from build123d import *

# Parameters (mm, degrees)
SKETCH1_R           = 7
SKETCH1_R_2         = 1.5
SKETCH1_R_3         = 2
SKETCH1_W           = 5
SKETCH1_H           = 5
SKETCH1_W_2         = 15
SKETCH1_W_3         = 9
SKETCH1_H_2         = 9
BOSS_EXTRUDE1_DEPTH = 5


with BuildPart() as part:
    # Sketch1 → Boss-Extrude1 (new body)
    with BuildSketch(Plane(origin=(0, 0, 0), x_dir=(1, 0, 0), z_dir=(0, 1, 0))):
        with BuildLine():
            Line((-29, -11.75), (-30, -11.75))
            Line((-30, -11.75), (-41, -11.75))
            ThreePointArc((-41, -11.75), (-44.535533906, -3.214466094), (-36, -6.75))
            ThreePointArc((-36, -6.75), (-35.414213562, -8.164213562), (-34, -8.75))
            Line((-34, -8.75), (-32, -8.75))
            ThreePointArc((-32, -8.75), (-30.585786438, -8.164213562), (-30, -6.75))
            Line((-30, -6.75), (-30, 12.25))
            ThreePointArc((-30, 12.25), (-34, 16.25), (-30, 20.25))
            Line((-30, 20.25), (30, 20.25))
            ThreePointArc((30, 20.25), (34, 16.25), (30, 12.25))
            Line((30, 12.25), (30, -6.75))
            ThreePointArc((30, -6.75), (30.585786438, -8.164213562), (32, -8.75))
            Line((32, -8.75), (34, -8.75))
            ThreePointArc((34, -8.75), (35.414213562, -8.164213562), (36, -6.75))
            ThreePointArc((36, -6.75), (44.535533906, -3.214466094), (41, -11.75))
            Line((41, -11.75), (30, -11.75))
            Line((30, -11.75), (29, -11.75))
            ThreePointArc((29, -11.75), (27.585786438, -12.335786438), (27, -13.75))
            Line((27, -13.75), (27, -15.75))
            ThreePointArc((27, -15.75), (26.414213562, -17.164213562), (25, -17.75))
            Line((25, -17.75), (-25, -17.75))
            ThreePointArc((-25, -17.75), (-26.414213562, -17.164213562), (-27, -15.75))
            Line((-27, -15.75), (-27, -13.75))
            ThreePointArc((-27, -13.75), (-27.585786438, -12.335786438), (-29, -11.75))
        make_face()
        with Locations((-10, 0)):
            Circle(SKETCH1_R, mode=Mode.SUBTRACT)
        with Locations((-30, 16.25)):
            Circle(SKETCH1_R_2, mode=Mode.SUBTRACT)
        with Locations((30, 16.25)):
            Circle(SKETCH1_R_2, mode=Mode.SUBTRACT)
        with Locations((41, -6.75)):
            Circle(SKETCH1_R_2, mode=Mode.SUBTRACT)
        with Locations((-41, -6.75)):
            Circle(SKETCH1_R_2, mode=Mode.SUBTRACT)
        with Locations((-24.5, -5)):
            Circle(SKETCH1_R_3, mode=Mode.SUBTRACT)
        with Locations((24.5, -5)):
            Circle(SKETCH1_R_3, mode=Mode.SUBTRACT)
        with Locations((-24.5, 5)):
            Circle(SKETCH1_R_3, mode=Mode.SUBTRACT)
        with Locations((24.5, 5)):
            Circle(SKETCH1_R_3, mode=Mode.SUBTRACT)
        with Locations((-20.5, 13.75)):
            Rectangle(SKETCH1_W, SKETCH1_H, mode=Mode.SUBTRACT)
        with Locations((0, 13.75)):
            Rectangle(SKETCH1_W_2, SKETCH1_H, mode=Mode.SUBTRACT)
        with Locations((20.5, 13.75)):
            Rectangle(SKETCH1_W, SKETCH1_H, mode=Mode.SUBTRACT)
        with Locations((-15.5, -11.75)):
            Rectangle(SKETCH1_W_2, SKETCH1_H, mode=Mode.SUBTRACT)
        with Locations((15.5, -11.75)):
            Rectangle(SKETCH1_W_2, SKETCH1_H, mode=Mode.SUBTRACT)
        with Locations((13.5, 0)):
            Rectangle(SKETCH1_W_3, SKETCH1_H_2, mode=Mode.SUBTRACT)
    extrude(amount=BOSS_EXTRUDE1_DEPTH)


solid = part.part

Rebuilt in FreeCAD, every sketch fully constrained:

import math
import FreeCAD as App
import Part
import Sketcher

V = App.Vector
Q = App.Units.Quantity

doc = App.newDocument("Part")
body = doc.addObject("PartDesign::Body", "Body")

sketch1 = body.newObject("Sketcher::SketchObject", "Sketch")
sketch1.AttachmentSupport = (doc.getObject("XZ_Plane"), [""])
sketch1.MapMode = "FlatFace"
sketch1.addGeometry(Part.LineSegment(V(-41, 11.8, 0), V(-29, 11.8, 0)), False)
sketch1.addGeometry(Part.ArcOfCircle(Part.Circle(V(-29, 13.8, 0), V(0, 0, 1), 2), math.radians(-90), math.radians(0)), False)
sketch1.addGeometry(Part.LineSegment(V(-27, 13.8, 0), V(-27, 15.8, 0)), False)
sketch1.addGeometry(Part.ArcOfCircle(Part.Circle(V(-25, 15.7, 0), V(0, 0, 1), 2), math.radians(90), math.radians(180)), False)
sketch1.addGeometry(Part.LineSegment(V(-25, 17.8, 0), V(25, 17.8, 0)), False)
sketch1.addGeometry(Part.ArcOfCircle(Part.Circle(V(25, 15.7, 0), V(0, 0, 1), 2), math.radians(0), math.radians(90)), False)
sketch1.addGeometry(Part.LineSegment(V(27, 15.8, 0), V(27, 13.8, 0)), False)
sketch1.addGeometry(Part.ArcOfCircle(Part.Circle(V(29, 13.8, 0), V(0, 0, 1), 2), math.radians(-180), math.radians(-90)), False)
sketch1.addGeometry(Part.LineSegment(V(29, 11.8, 0), V(41, 11.8, 0)), False)
sketch1.addGeometry(Part.ArcOfCircle(Part.Circle(V(41, 6.8, 0), V(0, 0, 1), 5), math.radians(180), math.radians(450)), False)
sketch1.addGeometry(Part.ArcOfCircle(Part.Circle(V(34, 6.7, 0), V(0, 0, 1), 2), math.radians(0), math.radians(90)), False)
sketch1.addGeometry(Part.LineSegment(V(34, 8.8, 0), V(32, 8.8, 0)), False)
sketch1.addGeometry(Part.ArcOfCircle(Part.Circle(V(32, 6.7, 0), V(0, 0, 1), 2), math.radians(90), math.radians(180)), False)
sketch1.addGeometry(Part.LineSegment(V(30, 6.8, 0), V(30, -12.2, 0)), False)
sketch1.addGeometry(Part.ArcOfCircle(Part.Circle(V(30, -16.2, 0), V(0, 0, 1), 4), math.radians(-90), math.radians(90)), False)
sketch1.addGeometry(Part.LineSegment(V(30, -20.2, 0), V(-30, -20.2, 0)), False)
sketch1.addGeometry(Part.ArcOfCircle(Part.Circle(V(-30, -16.2, 0), V(0, 0, 1), 4), math.radians(90), math.radians(270)), False)
sketch1.addGeometry(Part.LineSegment(V(-30, -12.2, 0), V(-30, 6.8, 0)), False)
sketch1.addGeometry(Part.ArcOfCircle(Part.Circle(V(-32, 6.7, 0), V(0, 0, 1), 2), math.radians(0), math.radians(90)), False)
sketch1.addGeometry(Part.LineSegment(V(-32, 8.8, 0), V(-34, 8.8, 0)), False)
sketch1.addGeometry(Part.ArcOfCircle(Part.Circle(V(-34, 6.7, 0), V(0, 0, 1), 2), math.radians(90), math.radians(180)), False)
sketch1.addGeometry(Part.ArcOfCircle(Part.Circle(V(-41, 6.8, 0), V(0, 0, 1), 5), math.radians(90), math.radians(360)), False)
sketch1.addGeometry(Part.Circle(V(41, 6.8, 0), V(0, 0, 1), 1.5), False)
sketch1.addGeometry(Part.LineSegment(V(8, 14.2, 0), V(8, 9.2, 0)), False)
sketch1.addGeometry(Part.LineSegment(V(8, 9.2, 0), V(23, 9.2, 0)), False)
sketch1.addGeometry(Part.LineSegment(V(23, 9.2, 0), V(23, 14.2, 0)), False)
sketch1.addGeometry(Part.LineSegment(V(23, 14.2, 0), V(8, 14.2, 0)), False)
sketch1.addGeometry(Part.Circle(V(24.5, 5, 0), V(0, 0, 1), 2), False)
sketch1.addGeometry(Part.LineSegment(V(9, 4.5, 0), V(9, -4.5, 0)), False)
sketch1.addGeometry(Part.LineSegment(V(9, -4.5, 0), V(18, -4.5, 0)), False)
sketch1.addGeometry(Part.LineSegment(V(18, -4.5, 0), V(18, 4.5, 0)), False)
sketch1.addGeometry(Part.LineSegment(V(18, 4.5, 0), V(9, 4.5, 0)), False)
sketch1.addGeometry(Part.LineSegment(V(-23, 14.2, 0), V(-23, 9.2, 0)), False)
sketch1.addGeometry(Part.LineSegment(V(-23, 9.2, 0), V(-8, 9.2, 0)), False)
sketch1.addGeometry(Part.LineSegment(V(-8, 9.2, 0), V(-8, 14.2, 0)), False)
sketch1.addGeometry(Part.LineSegment(V(-8, 14.2, 0), V(-23, 14.2, 0)), False)
sketch1.addGeometry(Part.Circle(V(-41, 6.8, 0), V(0, 0, 1), 1.5), False)
sketch1.addGeometry(Part.Circle(V(-10, 0, 0), V(0, 0, 1), 7), False)
sketch1.addGeometry(Part.Circle(V(-24.5, 5, 0), V(0, 0, 1), 2), False)
sketch1.addGeometry(Part.Circle(V(24.5, -5, 0), V(0, 0, 1), 2), False)
sketch1.addGeometry(Part.Circle(V(30, -16.2, 0), V(0, 0, 1), 1.5), False)
sketch1.addGeometry(Part.LineSegment(V(18, -11.2, 0), V(18, -16.2, 0)), False)
sketch1.addGeometry(Part.LineSegment(V(18, -16.2, 0), V(23, -16.2, 0)), False)
sketch1.addGeometry(Part.LineSegment(V(23, -16.2, 0), V(23, -11.2, 0)), False)
sketch1.addGeometry(Part.LineSegment(V(23, -11.2, 0), V(18, -11.2, 0)), False)
sketch1.addGeometry(Part.Circle(V(-24.5, -5, 0), V(0, 0, 1), 2), False)
sketch1.addGeometry(Part.LineSegment(V(-7.5, -11.2, 0), V(-7.5, -16.2, 0)), False)
sketch1.addGeometry(Part.LineSegment(V(-7.5, -16.2, 0), V(7.5, -16.2, 0)), False)
sketch1.addGeometry(Part.LineSegment(V(7.5, -16.2, 0), V(7.5, -11.2, 0)), False)
sketch1.addGeometry(Part.LineSegment(V(7.5, -11.2, 0), V(-7.5, -11.2, 0)), False)
sketch1.addGeometry(Part.LineSegment(V(-23, -11.2, 0), V(-23, -16.2, 0)), False)
sketch1.addGeometry(Part.LineSegment(V(-23, -16.2, 0), V(-18, -16.2, 0)), False)
sketch1.addGeometry(Part.LineSegment(V(-18, -16.2, 0), V(-18, -11.2, 0)), False)
sketch1.addGeometry(Part.LineSegment(V(-18, -11.2, 0), V(-23, -11.2, 0)), False)
sketch1.addGeometry(Part.Circle(V(-30, -16.2, 0), V(0, 0, 1), 1.5), False)
sketch1.addConstraint(Sketcher.Constraint("Tangent", 0, 2, 1, 1))
sketch1.addConstraint(Sketcher.Constraint("Tangent", 1, 2, 2, 1))
sketch1.addConstraint(Sketcher.Constraint("Tangent", 2, 2, 3, 2))
sketch1.addConstraint(Sketcher.Constraint("Tangent", 3, 1, 4, 1))
sketch1.addConstraint(Sketcher.Constraint("Tangent", 4, 2, 5, 2))
sketch1.addConstraint(Sketcher.Constraint("Tangent", 5, 1, 6, 1))
sketch1.addConstraint(Sketcher.Constraint("Tangent", 6, 2, 7, 1))
sketch1.addConstraint(Sketcher.Constraint("Tangent", 7, 2, 8, 1))
sketch1.addConstraint(Sketcher.Constraint("Tangent", 8, 2, 9, 2))
sketch1.addConstraint(Sketcher.Constraint("Tangent", 9, 1, 10, 1))
sketch1.addConstraint(Sketcher.Constraint("Tangent", 10, 2, 11, 1))
sketch1.addConstraint(Sketcher.Constraint("Tangent", 11, 2, 12, 1))
sketch1.addConstraint(Sketcher.Constraint("Tangent", 12, 2, 13, 1))
sketch1.addConstraint(Sketcher.Constraint("Coincident", 13, 2, 14, 2))
sketch1.addConstraint(Sketcher.Constraint("Tangent", 14, 1, 15, 1))
sketch1.addConstraint(Sketcher.Constraint("Tangent", 15, 2, 16, 2))
sketch1.addConstraint(Sketcher.Constraint("Coincident", 16, 1, 17, 1))
sketch1.addConstraint(Sketcher.Constraint("Tangent", 17, 2, 18, 1))
sketch1.addConstraint(Sketcher.Constraint("Tangent", 18, 2, 19, 1))
sketch1.addConstraint(Sketcher.Constraint("Tangent", 19, 2, 20, 1))
sketch1.addConstraint(Sketcher.Constraint("Tangent", 20, 2, 21, 2))
sketch1.addConstraint(Sketcher.Constraint("Tangent", 21, 1, 0, 1))
sketch1.addConstraint(Sketcher.Constraint("Coincident", 23, 2, 24, 1))
sketch1.addConstraint(Sketcher.Constraint("Coincident", 24, 2, 25, 1))
sketch1.addConstraint(Sketcher.Constraint("Coincident", 25, 2, 26, 1))
sketch1.addConstraint(Sketcher.Constraint("Coincident", 26, 2, 23, 1))
sketch1.addConstraint(Sketcher.Constraint("Coincident", 28, 2, 29, 1))
sketch1.addConstraint(Sketcher.Constraint("Coincident", 29, 2, 30, 1))
sketch1.addConstraint(Sketcher.Constraint("Coincident", 30, 2, 31, 1))
sketch1.addConstraint(Sketcher.Constraint("Coincident", 31, 2, 28, 1))
sketch1.addConstraint(Sketcher.Constraint("Coincident", 32, 2, 33, 1))
sketch1.addConstraint(Sketcher.Constraint("Coincident", 33, 2, 34, 1))
sketch1.addConstraint(Sketcher.Constraint("Coincident", 34, 2, 35, 1))
sketch1.addConstraint(Sketcher.Constraint("Coincident", 35, 2, 32, 1))
sketch1.addConstraint(Sketcher.Constraint("Coincident", 41, 2, 42, 1))
sketch1.addConstraint(Sketcher.Constraint("Coincident", 42, 2, 43, 1))
sketch1.addConstraint(Sketcher.Constraint("Coincident", 43, 2, 44, 1))
sketch1.addConstraint(Sketcher.Constraint("Coincident", 44, 2, 41, 1))
sketch1.addConstraint(Sketcher.Constraint("Coincident", 46, 2, 47, 1))
sketch1.addConstraint(Sketcher.Constraint("Coincident", 47, 2, 48, 1))
sketch1.addConstraint(Sketcher.Constraint("Coincident", 48, 2, 49, 1))
sketch1.addConstraint(Sketcher.Constraint("Coincident", 49, 2, 46, 1))
sketch1.addConstraint(Sketcher.Constraint("Coincident", 50, 2, 51, 1))
sketch1.addConstraint(Sketcher.Constraint("Coincident", 51, 2, 52, 1))
sketch1.addConstraint(Sketcher.Constraint("Coincident", 52, 2, 53, 1))
sketch1.addConstraint(Sketcher.Constraint("Coincident", 53, 2, 50, 1))
sketch1.addConstraint(Sketcher.Constraint("Horizontal", 0))
sketch1.addConstraint(Sketcher.Constraint("Vertical", 2))
sketch1.addConstraint(Sketcher.Constraint("Horizontal", 4))
sketch1.addConstraint(Sketcher.Constraint("Vertical", 6))
sketch1.addConstraint(Sketcher.Constraint("Horizontal", 8))
sketch1.addConstraint(Sketcher.Constraint("Horizontal", 11))
sketch1.addConstraint(Sketcher.Constraint("Vertical", 13))
sketch1.addConstraint(Sketcher.Constraint("Horizontal", 15))
sketch1.addConstraint(Sketcher.Constraint("Vertical", 17))
sketch1.addConstraint(Sketcher.Constraint("Horizontal", 19))
sketch1.addConstraint(Sketcher.Constraint("Vertical", 23))
sketch1.addConstraint(Sketcher.Constraint("Horizontal", 24))
sketch1.addConstraint(Sketcher.Constraint("Vertical", 25))
sketch1.addConstraint(Sketcher.Constraint("Horizontal", 26))
sketch1.addConstraint(Sketcher.Constraint("Vertical", 28))
sketch1.addConstraint(Sketcher.Constraint("Horizontal", 29))
sketch1.addConstraint(Sketcher.Constraint("Vertical", 30))
sketch1.addConstraint(Sketcher.Constraint("Horizontal", 31))
sketch1.addConstraint(Sketcher.Constraint("Vertical", 32))
sketch1.addConstraint(Sketcher.Constraint("Horizontal", 33))
sketch1.addConstraint(Sketcher.Constraint("Vertical", 34))
sketch1.addConstraint(Sketcher.Constraint("Horizontal", 35))
sketch1.addConstraint(Sketcher.Constraint("Vertical", 41))
sketch1.addConstraint(Sketcher.Constraint("Horizontal", 42))
sketch1.addConstraint(Sketcher.Constraint("Vertical", 43))
sketch1.addConstraint(Sketcher.Constraint("Horizontal", 44))
sketch1.addConstraint(Sketcher.Constraint("Vertical", 46))
sketch1.addConstraint(Sketcher.Constraint("Horizontal", 47))
sketch1.addConstraint(Sketcher.Constraint("Vertical", 48))
sketch1.addConstraint(Sketcher.Constraint("Horizontal", 49))
sketch1.addConstraint(Sketcher.Constraint("Vertical", 50))
sketch1.addConstraint(Sketcher.Constraint("Horizontal", 51))
sketch1.addConstraint(Sketcher.Constraint("Vertical", 52))
sketch1.addConstraint(Sketcher.Constraint("Horizontal", 53))
sketch1.addConstraint(Sketcher.Constraint("Coincident", 22, 3, 9, 3))
sketch1.addConstraint(Sketcher.Constraint("Coincident", 36, 3, 21, 3))
sketch1.addConstraint(Sketcher.Constraint("Coincident", 40, 3, 14, 3))
sketch1.addConstraint(Sketcher.Constraint("Coincident", 54, 3, 16, 3))
sketch1.addConstraint(Sketcher.Constraint("Equal", 1, 3))
sketch1.addConstraint(Sketcher.Constraint("Equal", 3, 5))
sketch1.addConstraint(Sketcher.Constraint("Equal", 5, 7))
sketch1.addConstraint(Sketcher.Constraint("Equal", 7, 10))
sketch1.addConstraint(Sketcher.Constraint("Equal", 10, 12))
sketch1.addConstraint(Sketcher.Constraint("Equal", 14, 16))
sketch1.addConstraint(Sketcher.Constraint("Equal", 12, 18))
sketch1.addConstraint(Sketcher.Constraint("Equal", 18, 20))
sketch1.addConstraint(Sketcher.Constraint("Equal", 9, 21))
sketch1.addConstraint(Sketcher.Constraint("Equal", 20, 27))
sketch1.addConstraint(Sketcher.Constraint("Equal", 22, 36))
sketch1.addConstraint(Sketcher.Constraint("Equal", 27, 38))
sketch1.addConstraint(Sketcher.Constraint("Equal", 38, 39))
sketch1.addConstraint(Sketcher.Constraint("Equal", 36, 40))
sketch1.addConstraint(Sketcher.Constraint("Equal", 39, 45))
sketch1.addConstraint(Sketcher.Constraint("Equal", 40, 54))
sketch1.addConstraint(Sketcher.Constraint("Symmetric", 38, 3, 39, 3, -1, 1))
sketch1.addConstraint(Sketcher.Constraint("Symmetric", 27, 3, 45, 3, -1, 1))
sketch1.addConstraint(Sketcher.Constraint("Symmetric", 1, 3, 7, 3, -2))
sketch1.addConstraint(Sketcher.Constraint("Symmetric", 12, 3, 18, 3, -2))
sketch1.addConstraint(Sketcher.Constraint("Symmetric", 27, 3, 38, 3, -2))
sketch1.addConstraint(Sketcher.Constraint("Symmetric", 24, 2, 32, 2, -2))
sketch1.addConstraint(Sketcher.Constraint("Symmetric", 26, 2, 34, 2, -2))
sketch1.addConstraint(Sketcher.Constraint("Symmetric", 42, 2, 50, 2, -2))
sketch1.addConstraint(Sketcher.Constraint("Symmetric", 44, 2, 52, 2, -2))
sketch1.addConstraint(Sketcher.Constraint("PointOnObject", 37, 3, -1))
sketch1.addConstraint(Sketcher.Constraint("Horizontal", 9, 3, 10, 3))
sketch1.addConstraint(Sketcher.Constraint("Horizontal", 54, 3, 41, 2))
sketch1.addConstraint(Sketcher.Constraint("Horizontal", 42, 2, 46, 2))
sketch1.addConstraint(Sketcher.Constraint("Horizontal", 44, 2, 48, 2))
sketch1.addConstraint(Sketcher.Constraint("Vertical", 40, 3, 12, 2))
sketch1.addConstraint(Sketcher.Constraint("Vertical", 15, 2, 16, 1))
sketch1.addConstraint(Sketcher.Constraint("Vertical", 30, 2, 41, 2))
sketch1.addConstraint(Sketcher.Constraint("Vertical", 25, 2, 42, 2))
sketch1.addConstraint(Sketcher.Constraint("Equal", 0, 8))
sketch1.addConstraint(Sketcher.Constraint("Equal", 35, 47))
sketch1.addConstraint(Sketcher.Constraint("Equal", 19, 2))
sketch1.addConstraint(Sketcher.Constraint("Equal", 53, 23))
sketch1.addConstraint(Sketcher.Constraint("Equal", 31, 28))
sketch1.addConstraint(Sketcher.Constraint("Equal", 34, 41))
sketch1.addConstraint(Sketcher.Constraint("Diameter", 22, Q("3 mm")))
sketch1.addConstraint(Sketcher.Constraint("Diameter", 27, Q("4 mm")))
sketch1.addConstraint(Sketcher.Constraint("Diameter", 37, Q("14 mm")))
sketch1.addConstraint(Sketcher.Constraint("Radius", 9, Q("5 mm")))
sketch1.addConstraint(Sketcher.Constraint("Radius", 14, Q("4 mm")))
sketch1.addConstraint(Sketcher.Constraint("DistanceX", 0, 1, 0, 2, Q("12 mm")))
sketch1.addConstraint(Sketcher.Constraint("DistanceX", 4, 1, 4, 2, Q("50 mm")))
sketch1.addConstraint(Sketcher.Constraint("DistanceX", 11, 2, 11, 1, Q("2 mm")))
sketch1.addConstraint(Sketcher.Constraint("DistanceX", 24, 1, 24, 2, Q("15 mm")))
sketch1.addConstraint(Sketcher.Constraint("DistanceX", 29, 1, 29, 2, Q("9 mm")))
sketch1.addConstraint(Sketcher.Constraint("DistanceX", 42, 1, 42, 2, Q("5 mm")))
sketch1.addConstraint(Sketcher.Constraint("DistanceY", 13, 2, 13, 1, Q("19 mm")))
sketch1.addConstraint(Sketcher.Constraint("DistanceY", -1, 1, 27, 3, Q("5 mm")))
sketch1.addConstraint(Sketcher.Constraint("DistanceX", 37, 3, -1, 1, Q("10 mm")))
sketch1.addConstraint(Sketcher.Constraint("DistanceX", -1, 1, 23, 2, Q("8 mm")))
sketch1.addConstraint(Sketcher.Constraint("DistanceX", -1, 1, 27, 3, Q("24.5 mm")))
sketch1.addConstraint(Sketcher.Constraint("DistanceY", 28, 2, -1, 1, Q("4.5 mm")))
sketch1.addConstraint(Sketcher.Constraint("DistanceX", 46, 2, -1, 1, Q("7.5 mm")))
sketch1.addConstraint(Sketcher.Constraint("DistanceY", -1, 1, 1, 3, Q("13.75 mm")))
sketch1.addConstraint(Sketcher.Constraint("DistanceY", -1, 1, 23, 2, Q("9.25 mm")))
pad1 = body.newObject("PartDesign::Pad", "Pad")
pad1.Profile = sketch1
pad1.Length = 5
pad1.Reversed = True

doc.recompute()
